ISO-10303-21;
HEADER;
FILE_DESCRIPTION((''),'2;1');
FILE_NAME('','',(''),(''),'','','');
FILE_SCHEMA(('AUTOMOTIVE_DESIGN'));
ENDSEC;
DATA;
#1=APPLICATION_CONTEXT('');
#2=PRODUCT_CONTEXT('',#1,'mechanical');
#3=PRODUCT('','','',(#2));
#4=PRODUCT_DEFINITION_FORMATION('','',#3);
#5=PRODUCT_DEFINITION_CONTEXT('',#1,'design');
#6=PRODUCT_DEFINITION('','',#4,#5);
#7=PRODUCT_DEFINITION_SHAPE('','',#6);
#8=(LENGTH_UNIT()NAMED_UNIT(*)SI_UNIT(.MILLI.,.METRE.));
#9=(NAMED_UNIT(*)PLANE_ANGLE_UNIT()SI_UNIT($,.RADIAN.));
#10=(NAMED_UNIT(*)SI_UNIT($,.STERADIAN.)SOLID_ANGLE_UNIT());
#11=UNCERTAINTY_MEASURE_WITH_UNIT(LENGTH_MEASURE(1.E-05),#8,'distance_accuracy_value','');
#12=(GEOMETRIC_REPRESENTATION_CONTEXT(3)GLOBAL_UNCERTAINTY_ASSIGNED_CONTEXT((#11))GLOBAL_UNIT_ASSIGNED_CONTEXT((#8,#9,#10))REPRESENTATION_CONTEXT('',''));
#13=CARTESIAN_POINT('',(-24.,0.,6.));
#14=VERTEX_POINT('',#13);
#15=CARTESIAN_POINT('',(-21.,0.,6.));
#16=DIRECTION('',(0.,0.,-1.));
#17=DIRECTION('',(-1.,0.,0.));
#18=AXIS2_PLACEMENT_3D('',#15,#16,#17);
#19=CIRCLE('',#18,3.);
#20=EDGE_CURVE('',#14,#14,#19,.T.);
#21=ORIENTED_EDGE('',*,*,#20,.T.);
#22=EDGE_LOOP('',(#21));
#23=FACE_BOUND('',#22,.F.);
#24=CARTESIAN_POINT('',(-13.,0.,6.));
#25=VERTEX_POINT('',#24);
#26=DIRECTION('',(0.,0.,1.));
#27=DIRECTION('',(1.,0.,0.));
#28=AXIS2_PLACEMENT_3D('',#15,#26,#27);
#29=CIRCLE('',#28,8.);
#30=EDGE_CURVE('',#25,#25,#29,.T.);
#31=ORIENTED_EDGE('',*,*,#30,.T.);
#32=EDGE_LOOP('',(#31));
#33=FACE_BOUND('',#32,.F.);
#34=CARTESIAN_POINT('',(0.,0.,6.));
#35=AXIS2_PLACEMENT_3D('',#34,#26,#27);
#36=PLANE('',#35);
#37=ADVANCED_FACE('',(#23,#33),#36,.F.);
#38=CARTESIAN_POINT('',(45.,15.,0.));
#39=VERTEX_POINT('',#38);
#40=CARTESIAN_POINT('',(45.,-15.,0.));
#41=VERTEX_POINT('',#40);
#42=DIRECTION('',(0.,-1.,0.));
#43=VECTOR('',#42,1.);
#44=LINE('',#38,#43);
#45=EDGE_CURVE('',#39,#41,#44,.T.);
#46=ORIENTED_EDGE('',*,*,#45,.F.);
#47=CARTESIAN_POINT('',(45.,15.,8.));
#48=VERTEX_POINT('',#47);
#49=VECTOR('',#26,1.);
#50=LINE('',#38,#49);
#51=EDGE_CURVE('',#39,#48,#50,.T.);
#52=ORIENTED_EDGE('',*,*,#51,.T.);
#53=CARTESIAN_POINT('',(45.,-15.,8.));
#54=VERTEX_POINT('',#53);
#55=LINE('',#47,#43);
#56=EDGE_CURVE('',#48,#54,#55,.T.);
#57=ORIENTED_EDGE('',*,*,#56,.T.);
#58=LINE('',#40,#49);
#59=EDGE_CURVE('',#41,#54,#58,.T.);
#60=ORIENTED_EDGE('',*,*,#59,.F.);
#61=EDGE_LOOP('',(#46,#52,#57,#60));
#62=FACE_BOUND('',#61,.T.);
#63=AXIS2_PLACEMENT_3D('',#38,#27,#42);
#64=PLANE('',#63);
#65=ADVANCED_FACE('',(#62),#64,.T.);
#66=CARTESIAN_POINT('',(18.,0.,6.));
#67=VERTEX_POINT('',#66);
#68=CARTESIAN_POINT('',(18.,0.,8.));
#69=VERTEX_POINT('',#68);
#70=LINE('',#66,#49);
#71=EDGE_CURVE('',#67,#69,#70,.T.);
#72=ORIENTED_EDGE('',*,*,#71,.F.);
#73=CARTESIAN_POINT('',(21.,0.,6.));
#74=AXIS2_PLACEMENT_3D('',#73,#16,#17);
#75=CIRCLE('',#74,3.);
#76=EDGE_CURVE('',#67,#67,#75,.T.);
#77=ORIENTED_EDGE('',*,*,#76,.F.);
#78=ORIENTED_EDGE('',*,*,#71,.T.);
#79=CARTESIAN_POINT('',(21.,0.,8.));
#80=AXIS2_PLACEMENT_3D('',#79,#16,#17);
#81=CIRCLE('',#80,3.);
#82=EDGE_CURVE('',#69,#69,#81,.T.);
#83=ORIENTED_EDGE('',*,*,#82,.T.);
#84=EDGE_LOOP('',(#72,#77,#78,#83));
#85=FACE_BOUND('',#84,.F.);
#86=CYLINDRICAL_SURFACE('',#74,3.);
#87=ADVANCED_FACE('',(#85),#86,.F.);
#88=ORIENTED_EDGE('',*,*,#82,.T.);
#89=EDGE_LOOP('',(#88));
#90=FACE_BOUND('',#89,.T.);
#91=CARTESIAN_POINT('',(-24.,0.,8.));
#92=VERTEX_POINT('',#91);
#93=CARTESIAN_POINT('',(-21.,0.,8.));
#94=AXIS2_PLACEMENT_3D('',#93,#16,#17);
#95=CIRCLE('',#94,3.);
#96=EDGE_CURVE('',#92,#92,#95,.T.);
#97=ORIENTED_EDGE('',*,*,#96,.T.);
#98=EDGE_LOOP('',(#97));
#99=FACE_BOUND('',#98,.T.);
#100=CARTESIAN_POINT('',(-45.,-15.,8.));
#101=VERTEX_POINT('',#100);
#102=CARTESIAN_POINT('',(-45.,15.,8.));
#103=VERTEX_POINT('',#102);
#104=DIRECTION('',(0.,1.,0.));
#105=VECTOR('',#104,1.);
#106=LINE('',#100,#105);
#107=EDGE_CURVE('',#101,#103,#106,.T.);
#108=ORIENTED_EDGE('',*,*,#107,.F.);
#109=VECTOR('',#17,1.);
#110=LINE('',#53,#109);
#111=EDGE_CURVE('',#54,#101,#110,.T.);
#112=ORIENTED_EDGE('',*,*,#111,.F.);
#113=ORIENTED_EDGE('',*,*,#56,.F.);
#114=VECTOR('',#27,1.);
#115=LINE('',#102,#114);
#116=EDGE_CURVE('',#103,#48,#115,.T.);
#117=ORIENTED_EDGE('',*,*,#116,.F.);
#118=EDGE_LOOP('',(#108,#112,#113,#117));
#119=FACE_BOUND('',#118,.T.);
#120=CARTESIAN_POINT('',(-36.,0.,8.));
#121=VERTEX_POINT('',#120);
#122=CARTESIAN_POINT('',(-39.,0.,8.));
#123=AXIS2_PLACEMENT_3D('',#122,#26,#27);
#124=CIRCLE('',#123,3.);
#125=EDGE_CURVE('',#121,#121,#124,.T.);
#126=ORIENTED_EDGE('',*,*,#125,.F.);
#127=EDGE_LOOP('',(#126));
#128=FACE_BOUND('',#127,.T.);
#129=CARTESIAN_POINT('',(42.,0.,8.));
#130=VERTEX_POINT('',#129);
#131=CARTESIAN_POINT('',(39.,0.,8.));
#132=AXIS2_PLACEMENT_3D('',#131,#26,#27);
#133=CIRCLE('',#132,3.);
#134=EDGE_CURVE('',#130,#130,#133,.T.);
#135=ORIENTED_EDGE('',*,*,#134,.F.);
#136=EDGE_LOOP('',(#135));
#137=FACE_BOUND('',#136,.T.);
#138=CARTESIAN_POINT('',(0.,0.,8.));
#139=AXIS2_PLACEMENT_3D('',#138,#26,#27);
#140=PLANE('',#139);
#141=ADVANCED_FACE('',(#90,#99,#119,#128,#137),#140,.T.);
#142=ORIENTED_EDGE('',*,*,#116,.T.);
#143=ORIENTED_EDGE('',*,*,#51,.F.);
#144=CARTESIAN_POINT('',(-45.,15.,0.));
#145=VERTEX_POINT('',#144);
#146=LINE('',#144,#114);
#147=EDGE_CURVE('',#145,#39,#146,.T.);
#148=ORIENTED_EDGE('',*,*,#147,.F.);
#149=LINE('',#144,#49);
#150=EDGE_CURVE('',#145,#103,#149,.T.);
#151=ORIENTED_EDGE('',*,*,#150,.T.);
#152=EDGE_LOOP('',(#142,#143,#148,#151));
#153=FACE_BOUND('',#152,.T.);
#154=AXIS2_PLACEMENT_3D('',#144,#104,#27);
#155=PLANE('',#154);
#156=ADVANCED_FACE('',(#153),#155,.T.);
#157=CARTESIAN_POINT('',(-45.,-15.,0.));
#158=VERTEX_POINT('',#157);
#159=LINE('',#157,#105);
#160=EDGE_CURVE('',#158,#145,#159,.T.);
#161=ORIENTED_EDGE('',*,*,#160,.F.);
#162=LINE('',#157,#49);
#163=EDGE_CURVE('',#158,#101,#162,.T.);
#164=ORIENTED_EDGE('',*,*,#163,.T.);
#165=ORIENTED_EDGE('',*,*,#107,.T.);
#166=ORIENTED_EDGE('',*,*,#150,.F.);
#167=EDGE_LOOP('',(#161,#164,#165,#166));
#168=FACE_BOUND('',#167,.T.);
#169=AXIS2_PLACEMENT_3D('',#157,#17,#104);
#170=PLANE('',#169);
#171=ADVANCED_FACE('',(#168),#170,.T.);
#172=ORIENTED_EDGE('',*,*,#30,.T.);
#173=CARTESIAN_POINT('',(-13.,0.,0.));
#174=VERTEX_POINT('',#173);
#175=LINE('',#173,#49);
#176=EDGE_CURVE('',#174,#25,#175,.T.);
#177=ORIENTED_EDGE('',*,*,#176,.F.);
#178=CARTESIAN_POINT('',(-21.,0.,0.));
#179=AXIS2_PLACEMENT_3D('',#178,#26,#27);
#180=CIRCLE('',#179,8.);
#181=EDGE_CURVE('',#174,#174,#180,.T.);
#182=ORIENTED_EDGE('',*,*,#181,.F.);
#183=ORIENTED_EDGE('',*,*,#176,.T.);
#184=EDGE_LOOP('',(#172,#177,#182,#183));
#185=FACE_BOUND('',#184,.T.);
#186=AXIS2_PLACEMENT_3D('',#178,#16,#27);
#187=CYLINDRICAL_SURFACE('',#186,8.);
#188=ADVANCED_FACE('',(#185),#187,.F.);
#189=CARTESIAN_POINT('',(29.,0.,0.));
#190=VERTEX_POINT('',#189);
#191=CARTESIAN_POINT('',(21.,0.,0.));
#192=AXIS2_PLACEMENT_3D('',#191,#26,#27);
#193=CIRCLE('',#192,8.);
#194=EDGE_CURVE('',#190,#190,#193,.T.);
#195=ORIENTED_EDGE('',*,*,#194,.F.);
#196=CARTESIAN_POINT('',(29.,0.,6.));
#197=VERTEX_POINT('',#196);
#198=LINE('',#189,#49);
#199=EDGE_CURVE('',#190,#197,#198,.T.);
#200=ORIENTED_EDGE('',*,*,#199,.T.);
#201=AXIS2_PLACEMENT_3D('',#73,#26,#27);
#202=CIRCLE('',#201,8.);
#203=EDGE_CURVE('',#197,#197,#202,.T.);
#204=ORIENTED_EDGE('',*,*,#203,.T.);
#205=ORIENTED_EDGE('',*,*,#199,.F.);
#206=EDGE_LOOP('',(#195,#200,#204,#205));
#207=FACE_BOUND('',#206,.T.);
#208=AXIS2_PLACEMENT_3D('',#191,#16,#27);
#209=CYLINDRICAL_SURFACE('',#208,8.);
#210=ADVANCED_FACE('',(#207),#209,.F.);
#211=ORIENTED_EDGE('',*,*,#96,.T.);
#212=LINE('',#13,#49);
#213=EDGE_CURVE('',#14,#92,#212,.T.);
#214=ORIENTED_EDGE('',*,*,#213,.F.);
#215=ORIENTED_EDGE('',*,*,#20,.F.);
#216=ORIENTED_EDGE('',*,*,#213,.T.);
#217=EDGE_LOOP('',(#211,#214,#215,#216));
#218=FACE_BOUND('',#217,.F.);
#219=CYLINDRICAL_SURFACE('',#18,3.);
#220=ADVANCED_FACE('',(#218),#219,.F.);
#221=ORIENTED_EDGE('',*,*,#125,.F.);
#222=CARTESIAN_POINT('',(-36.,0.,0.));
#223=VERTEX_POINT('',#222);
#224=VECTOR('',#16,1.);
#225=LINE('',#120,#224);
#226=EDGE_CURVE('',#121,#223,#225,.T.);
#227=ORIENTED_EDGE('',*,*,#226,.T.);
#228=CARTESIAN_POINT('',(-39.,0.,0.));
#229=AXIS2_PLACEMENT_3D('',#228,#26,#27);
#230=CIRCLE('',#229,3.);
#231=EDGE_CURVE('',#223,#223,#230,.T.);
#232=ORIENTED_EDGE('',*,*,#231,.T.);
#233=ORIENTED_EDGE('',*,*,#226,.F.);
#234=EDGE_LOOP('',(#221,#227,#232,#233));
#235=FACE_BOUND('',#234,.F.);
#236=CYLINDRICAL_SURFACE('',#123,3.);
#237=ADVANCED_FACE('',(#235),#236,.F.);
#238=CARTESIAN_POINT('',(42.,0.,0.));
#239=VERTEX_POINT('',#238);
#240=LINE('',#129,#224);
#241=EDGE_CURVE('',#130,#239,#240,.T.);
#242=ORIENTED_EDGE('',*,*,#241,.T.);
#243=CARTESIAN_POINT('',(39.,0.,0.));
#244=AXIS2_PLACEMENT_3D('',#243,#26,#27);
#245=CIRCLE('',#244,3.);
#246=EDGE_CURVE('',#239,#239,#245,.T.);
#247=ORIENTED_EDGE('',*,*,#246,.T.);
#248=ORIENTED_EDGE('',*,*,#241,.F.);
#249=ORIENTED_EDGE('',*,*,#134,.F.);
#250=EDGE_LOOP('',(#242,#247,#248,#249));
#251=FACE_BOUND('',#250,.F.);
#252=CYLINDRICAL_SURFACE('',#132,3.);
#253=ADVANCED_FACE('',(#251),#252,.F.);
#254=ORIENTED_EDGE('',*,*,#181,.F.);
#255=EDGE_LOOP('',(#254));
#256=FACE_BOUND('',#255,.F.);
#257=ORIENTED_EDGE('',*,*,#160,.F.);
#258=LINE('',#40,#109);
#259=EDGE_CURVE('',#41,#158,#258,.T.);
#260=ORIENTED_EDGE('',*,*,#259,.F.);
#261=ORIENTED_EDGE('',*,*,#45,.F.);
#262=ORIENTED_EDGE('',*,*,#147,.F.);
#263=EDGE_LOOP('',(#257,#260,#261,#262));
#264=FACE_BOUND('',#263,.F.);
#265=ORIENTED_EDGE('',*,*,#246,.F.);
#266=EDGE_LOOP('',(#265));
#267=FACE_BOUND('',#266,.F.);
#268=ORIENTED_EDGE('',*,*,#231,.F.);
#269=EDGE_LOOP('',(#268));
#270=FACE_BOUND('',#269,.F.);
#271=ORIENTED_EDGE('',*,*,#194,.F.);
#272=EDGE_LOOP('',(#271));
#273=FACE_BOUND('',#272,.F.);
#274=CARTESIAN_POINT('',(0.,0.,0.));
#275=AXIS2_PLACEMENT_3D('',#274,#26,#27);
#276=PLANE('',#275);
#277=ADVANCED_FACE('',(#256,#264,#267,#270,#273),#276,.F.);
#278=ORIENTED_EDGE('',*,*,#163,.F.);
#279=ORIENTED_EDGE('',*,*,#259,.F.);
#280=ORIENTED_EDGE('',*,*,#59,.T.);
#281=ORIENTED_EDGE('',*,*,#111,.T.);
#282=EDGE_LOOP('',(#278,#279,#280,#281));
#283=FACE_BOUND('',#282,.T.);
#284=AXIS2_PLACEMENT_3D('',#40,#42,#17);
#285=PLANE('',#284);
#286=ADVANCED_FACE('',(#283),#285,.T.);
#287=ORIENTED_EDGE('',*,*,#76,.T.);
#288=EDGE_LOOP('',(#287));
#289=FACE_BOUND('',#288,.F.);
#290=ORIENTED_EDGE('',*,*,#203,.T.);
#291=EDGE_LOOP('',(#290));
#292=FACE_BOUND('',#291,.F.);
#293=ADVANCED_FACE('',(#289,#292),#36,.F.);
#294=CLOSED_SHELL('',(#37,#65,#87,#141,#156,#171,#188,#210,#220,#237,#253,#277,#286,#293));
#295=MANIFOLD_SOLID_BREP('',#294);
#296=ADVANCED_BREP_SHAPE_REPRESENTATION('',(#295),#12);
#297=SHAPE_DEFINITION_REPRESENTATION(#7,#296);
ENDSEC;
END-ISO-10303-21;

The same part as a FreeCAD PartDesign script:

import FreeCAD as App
import Part
import Sketcher
from FreeCAD import Vector


def add_polygon(sketch, points):
    """Adds a closed chain of lines whose ends are joined by coincident constraints."""
    first, n = sketch.GeometryCount, len(points)
    for a, b in zip(points, points[1:] + points[:1]):
        sketch.addGeometry(Part.LineSegment(App.Vector(*a, 0), App.Vector(*b, 0)), False)
    for i in range(n):
        sketch.addConstraint(Sketcher.Constraint("Coincident", first + i, 2, first + (i + 1) % n, 1))

doc = App.newDocument("Part")
body = doc.addObject("PartDesign::Body", "Body")

# Sketch on XY plane
sketch1 = doc.addObject("Sketcher::SketchObject", "Sketch")
body.addObject(sketch1)
sketch1.AttachmentSupport = (doc.XY_Plane, [""])
sketch1.MapMode = "FlatFace"
add_polygon(sketch1, [(45, 15), (-45, 15), (-45, -15), (45, -15)])  # lines 0-3
sketch1.addGeometry(Part.Circle(Vector(-21, 0, 0), Vector(0, 0, 1), 8), False)  # 4
sketch1.addGeometry(Part.Circle(Vector(21, 0, 0), Vector(0, 0, 1), 8), False)  # 5
sketch1.addConstraint([
    Sketcher.Constraint("Horizontal", 0),
    Sketcher.Constraint("Vertical", 1),
    Sketcher.Constraint("Horizontal", 2),
    Sketcher.Constraint("Vertical", 3),
    Sketcher.Constraint("Equal", 4, 5),
    Sketcher.Constraint("Symmetric", 4, 3, 5, 3, -1, 1),
    Sketcher.Constraint("Symmetric", 0, 2, 2, 2, -1, 1),
    Sketcher.Constraint("PointOnObject", 4, 3, -1),
    Sketcher.Constraint("Diameter", 4, 16.0),
    Sketcher.Constraint("DistanceY", 1, 2, 1, 1, 30.0),
    Sketcher.Constraint("DistanceX", 4, 3, -1, 1, 21.0),
    Sketcher.Constraint("DistanceX", 0, 2, 0, 1, 90.0),
])
pad1 = doc.addObject("PartDesign::Pad", "Pad")
body.addObject(pad1)
pad1.Profile = sketch1
pad1.Length = 8

# Sketch on XY plane
sketch2 = doc.addObject("Sketcher::SketchObject", "Sketch001")
body.addObject(sketch2)
sketch2.AttachmentSupport = (doc.XY_Plane, [""])
sketch2.MapMode = "FlatFace"
sketch2.AttachmentOffset = App.Placement(Vector(0, 0, 8), App.Rotation())
sketch2.addGeometry([
    Part.Circle(Vector(-21, 0, 0), Vector(0, 0, 1), 8),
    Part.Circle(Vector(21, 0, 0), Vector(0, 0, 1), 8),
], False)
sketch2.addConstraint([
    Sketcher.Constraint("Equal", 0, 1),
    Sketcher.Constraint("Symmetric", 0, 3, 1, 3, -1, 1),
    Sketcher.Constraint("PointOnObject", 0, 3, -1),
    Sketcher.Constraint("Diameter", 0, 16.0),
    Sketcher.Constraint("DistanceX", 0, 3, -1, 1, 21.0),
])
pad2 = doc.addObject("PartDesign::Pad", "Pad001")
body.addObject(pad2)
pad2.Profile = sketch2
pad2.Length = 2
pad2.Reversed = True

# Sketch on XY plane
sketch3 = doc.addObject("Sketcher::SketchObject", "Sketch002")
body.addObject(sketch3)
sketch3.AttachmentSupport = (doc.XY_Plane, [""])
sketch3.MapMode = "FlatFace"
sketch3.AttachmentOffset = App.Placement(Vector(0, 0, 6), App.Rotation())
sketch3.addGeometry([
    Part.Circle(Vector(21, 0, 0), Vector(0, 0, 1), 3),
    Part.Circle(Vector(-21, 0, 0), Vector(0, 0, 1), 3),
], False)
sketch3.addConstraint([
    Sketcher.Constraint("Equal", 0, 1),
    Sketcher.Constraint("Symmetric", 0, 3, 1, 3, -1, 1),
    Sketcher.Constraint("PointOnObject", 0, 3, -1),
    Sketcher.Constraint("Diameter", 0, 6.0),
    Sketcher.Constraint("DistanceX", -1, 1, 0, 3, 21.0),
])
pocket1 = doc.addObject("PartDesign::Pocket", "Pocket")
body.addObject(pocket1)
pocket1.Profile = sketch3
pocket1.Type = "ThroughAll"
pocket1.Reversed = True

# Sketch on XY plane
sketch4 = doc.addObject("Sketcher::SketchObject", "Sketch003")
body.addObject(sketch4)
sketch4.AttachmentSupport = (doc.XY_Plane, [""])
sketch4.MapMode = "FlatFace"
sketch4.AttachmentOffset = App.Placement(Vector(0, 0, 8), App.Rotation())
sketch4.addGeometry([
    Part.Circle(Vector(-39, 0, 0), Vector(0, 0, 1), 3),
    Part.Circle(Vector(39, 0, 0), Vector(0, 0, 1), 3),
], False)
sketch4.addConstraint([
    Sketcher.Constraint("Equal", 0, 1),
    Sketcher.Constraint("Symmetric", 0, 3, 1, 3, -1, 1),
    Sketcher.Constraint("PointOnObject", 0, 3, -1),
    Sketcher.Constraint("Diameter", 0, 6.0),
    Sketcher.Constraint("DistanceX", 0, 3, -1, 1, 39.0),
])
pocket2 = doc.addObject("PartDesign::Pocket", "Pocket001")
body.addObject(pocket2)
pocket2.Profile = sketch4
pocket2.Type = "ThroughAll"

doc.recompute()
